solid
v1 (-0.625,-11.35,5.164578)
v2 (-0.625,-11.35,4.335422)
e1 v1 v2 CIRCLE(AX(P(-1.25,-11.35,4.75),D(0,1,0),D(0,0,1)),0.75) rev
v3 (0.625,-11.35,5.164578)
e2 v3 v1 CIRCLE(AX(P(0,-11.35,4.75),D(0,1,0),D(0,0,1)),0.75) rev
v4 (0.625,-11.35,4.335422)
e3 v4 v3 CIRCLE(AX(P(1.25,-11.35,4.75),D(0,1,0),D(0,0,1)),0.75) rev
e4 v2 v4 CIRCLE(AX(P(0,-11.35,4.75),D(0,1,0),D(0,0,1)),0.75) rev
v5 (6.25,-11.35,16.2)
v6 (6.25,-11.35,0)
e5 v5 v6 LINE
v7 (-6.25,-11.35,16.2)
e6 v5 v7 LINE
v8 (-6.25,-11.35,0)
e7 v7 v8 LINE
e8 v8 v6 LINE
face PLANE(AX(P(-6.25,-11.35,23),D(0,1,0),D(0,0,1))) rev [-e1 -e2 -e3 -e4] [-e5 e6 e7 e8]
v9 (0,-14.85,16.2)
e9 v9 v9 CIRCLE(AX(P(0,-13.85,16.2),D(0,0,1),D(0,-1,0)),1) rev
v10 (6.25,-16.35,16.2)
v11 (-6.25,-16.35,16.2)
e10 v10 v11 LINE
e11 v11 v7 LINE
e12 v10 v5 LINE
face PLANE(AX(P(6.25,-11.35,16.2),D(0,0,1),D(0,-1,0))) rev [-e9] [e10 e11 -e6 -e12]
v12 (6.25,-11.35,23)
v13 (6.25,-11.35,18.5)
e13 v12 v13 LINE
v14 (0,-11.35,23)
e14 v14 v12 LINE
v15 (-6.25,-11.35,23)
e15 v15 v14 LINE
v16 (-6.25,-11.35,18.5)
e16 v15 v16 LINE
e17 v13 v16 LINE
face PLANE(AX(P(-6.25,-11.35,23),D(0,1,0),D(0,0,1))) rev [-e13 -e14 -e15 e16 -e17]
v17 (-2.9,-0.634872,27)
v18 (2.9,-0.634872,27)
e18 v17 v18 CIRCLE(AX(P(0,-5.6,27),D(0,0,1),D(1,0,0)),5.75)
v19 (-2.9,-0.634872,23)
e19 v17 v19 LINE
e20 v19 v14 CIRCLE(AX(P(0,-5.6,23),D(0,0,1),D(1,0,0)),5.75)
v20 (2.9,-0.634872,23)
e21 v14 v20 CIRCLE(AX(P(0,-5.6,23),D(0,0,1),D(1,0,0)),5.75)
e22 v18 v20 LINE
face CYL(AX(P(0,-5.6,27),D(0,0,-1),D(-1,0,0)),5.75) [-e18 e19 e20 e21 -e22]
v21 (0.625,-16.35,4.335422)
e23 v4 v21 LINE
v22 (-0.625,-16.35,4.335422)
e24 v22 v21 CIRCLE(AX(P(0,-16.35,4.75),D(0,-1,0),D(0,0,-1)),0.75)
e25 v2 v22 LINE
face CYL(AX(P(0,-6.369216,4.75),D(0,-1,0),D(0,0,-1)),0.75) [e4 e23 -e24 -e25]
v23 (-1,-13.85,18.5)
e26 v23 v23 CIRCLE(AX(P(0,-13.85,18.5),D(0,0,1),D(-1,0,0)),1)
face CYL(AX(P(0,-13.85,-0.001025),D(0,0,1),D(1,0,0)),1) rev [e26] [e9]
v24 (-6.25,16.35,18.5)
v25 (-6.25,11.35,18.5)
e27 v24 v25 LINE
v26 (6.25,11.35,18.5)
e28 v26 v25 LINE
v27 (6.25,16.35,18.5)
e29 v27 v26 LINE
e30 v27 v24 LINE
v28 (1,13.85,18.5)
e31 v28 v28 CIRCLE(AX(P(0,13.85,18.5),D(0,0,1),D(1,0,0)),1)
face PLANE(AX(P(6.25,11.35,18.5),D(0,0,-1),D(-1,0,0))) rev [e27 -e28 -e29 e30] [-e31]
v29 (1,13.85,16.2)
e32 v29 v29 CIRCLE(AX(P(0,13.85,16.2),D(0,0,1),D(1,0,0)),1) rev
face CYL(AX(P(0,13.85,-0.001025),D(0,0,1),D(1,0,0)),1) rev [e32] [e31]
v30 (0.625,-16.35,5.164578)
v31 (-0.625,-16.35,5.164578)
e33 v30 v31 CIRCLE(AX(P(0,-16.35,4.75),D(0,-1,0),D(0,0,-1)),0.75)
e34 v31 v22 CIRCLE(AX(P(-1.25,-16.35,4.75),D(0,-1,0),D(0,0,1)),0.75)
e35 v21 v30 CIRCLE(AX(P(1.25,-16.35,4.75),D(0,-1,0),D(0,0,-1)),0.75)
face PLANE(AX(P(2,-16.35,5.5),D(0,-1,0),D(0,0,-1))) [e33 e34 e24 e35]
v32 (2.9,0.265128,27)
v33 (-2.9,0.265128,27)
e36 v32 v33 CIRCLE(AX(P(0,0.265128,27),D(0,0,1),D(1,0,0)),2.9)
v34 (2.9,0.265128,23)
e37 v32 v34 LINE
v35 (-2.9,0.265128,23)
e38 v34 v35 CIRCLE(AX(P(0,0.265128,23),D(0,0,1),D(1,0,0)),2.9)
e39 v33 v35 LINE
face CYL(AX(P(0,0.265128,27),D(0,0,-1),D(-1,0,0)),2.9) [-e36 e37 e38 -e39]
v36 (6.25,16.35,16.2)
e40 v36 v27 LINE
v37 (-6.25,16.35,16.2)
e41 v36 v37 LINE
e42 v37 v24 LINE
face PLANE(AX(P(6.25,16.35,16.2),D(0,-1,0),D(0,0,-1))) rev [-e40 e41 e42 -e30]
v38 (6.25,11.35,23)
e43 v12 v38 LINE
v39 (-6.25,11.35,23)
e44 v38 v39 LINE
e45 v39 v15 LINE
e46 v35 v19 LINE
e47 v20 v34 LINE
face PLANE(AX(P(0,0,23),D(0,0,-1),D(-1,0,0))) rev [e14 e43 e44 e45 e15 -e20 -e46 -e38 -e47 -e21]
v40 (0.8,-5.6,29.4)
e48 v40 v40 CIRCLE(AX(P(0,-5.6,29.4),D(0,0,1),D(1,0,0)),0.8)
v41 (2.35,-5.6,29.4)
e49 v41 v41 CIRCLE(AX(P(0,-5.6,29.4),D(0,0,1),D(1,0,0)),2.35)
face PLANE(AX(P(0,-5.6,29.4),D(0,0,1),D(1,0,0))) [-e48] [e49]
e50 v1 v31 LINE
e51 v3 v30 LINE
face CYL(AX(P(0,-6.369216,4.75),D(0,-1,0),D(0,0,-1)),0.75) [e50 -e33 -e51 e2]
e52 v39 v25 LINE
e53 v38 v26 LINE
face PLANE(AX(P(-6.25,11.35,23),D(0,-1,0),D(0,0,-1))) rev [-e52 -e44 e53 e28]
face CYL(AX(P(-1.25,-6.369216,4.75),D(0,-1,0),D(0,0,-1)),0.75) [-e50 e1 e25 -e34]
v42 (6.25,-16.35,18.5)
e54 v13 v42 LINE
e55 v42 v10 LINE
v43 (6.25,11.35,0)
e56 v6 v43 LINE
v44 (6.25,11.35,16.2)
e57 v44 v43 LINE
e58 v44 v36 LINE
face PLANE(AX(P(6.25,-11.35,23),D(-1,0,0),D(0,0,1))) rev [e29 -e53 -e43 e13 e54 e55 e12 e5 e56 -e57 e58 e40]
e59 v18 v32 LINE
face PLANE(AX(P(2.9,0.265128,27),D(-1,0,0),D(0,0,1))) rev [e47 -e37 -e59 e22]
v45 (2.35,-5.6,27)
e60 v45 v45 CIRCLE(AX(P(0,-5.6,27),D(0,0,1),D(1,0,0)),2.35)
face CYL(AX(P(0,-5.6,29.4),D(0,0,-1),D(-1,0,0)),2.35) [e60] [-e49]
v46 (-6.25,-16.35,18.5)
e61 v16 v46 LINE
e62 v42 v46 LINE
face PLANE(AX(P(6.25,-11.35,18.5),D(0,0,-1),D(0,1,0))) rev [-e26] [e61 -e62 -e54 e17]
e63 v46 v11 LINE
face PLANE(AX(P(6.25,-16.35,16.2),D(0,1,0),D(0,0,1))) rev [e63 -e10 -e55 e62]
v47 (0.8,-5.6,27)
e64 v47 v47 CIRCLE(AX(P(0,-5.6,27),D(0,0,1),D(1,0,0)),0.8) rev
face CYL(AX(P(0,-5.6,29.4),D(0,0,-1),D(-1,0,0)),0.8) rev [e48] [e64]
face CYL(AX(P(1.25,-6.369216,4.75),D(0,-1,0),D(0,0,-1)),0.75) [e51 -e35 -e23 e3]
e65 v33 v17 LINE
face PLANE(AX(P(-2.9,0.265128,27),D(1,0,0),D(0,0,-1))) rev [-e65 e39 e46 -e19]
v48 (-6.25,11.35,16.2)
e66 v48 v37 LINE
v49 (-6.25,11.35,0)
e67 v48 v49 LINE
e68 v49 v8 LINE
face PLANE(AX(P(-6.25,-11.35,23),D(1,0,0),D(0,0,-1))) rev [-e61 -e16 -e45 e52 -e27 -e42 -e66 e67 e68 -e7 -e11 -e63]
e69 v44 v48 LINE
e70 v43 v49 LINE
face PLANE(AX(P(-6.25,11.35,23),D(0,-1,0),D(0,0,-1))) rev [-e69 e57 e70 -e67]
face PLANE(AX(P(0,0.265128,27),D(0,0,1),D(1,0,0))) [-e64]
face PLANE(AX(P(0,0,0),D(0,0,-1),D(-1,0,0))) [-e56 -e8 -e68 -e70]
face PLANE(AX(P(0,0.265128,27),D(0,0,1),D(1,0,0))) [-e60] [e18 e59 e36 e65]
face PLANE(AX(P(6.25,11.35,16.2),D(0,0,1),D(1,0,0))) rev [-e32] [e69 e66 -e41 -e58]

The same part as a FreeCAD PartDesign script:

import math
import FreeCAD as App
import Part
import Sketcher

V = App.Vector
Q = App.Units.Quantity


def add_polygon(sketch, points):
    """Adds a closed chain of lines whose ends are joined by coincident constraints."""
    first, n = sketch.GeometryCount, len(points)
    for a, b in zip(points, points[1:] + points[:1]):
        sketch.addGeometry(Part.LineSegment(App.Vector(*a, 0), App.Vector(*b, 0)), False)
    for i in range(n):
        sketch.addConstraint(Sketcher.Constraint("Coincident", first + i, 2, first + (i + 1) % n, 1))

doc = App.newDocument("Part")
params = doc.addObject("Spreadsheet::Sheet", "Params")
for row, (alias, value) in enumerate([
    ("sketch1_width", "12.5 mm"),
    ("sketch1_height", "22.7 mm"),
    ("pad1_length", "23 mm"),
    ("sketch2_radius", "2.9 mm"),
    ("sketch2_radius2", "5.75 mm"),
    ("sketch2_height", "0.9 mm"),
    ("pad2_length", "4 mm"),
    ("sketch3_width", "5 mm"),
    ("sketch3_height", "2.3 mm"),
    ("pad3_length", "12.5 mm"),
    ("sketch4_diameter", "2 mm"),
    ("sketch5_diameter", "2 mm"),
    ("sketch6_width", "4 mm"),
    ("sketch6_height", "5 mm"),
    ("pad4_length", "1.5 mm"),
    ("sketch7_diameter", "4.7 mm"),
    ("sketch7_diameter2", "1.6 mm"),
    ("pad5_length", "2.4 mm"),
    ("sketch8_radius", "0.75 mm"),
    ("pocket3_length", "5 mm"),
], start=1):
    params.set(f"A{row}", alias)
    params.set(f"B{row}", "=" + value)
    params.setAlias(f"B{row}", alias)

body = doc.addObject("PartDesign::Body", "Body")

# Sketch on XY plane
sketch1 = body.newObject("Sketcher::SketchObject", "Sketch")
sketch1.AttachmentSupport = (doc.getObject("XY_Plane"), [""])
sketch1.MapMode = "FlatFace"
add_polygon(sketch1, [(-6.25, 11.35), (-6.25, -11.35), (6.25, -11.35), (6.25, 11.35)])  # lines 0-3
sketch1.addConstraint(Sketcher.Constraint("Vertical", 0))
sketch1.addConstraint(Sketcher.Constraint("Horizontal", 1))
sketch1.addConstraint(Sketcher.Constraint("Vertical", 2))
sketch1.addConstraint(Sketcher.Constraint("Horizontal", 3))
sketch1.addConstraint(Sketcher.Constraint("Symmetric", 0, 2, 2, 2, -1, 1))
sketch1.addConstraint(Sketcher.Constraint("DistanceX", 1, 1, 1, 2, Q("12.5 mm")))
sketch1.addConstraint(Sketcher.Constraint("DistanceY", 0, 2, 0, 1, Q("22.7 mm")))
sketch1.setExpression("Constraints[9]", "Params.sketch1_width")
sketch1.setExpression("Constraints[10]", "Params.sketch1_height")
pad1 = body.newObject("PartDesign::Pad", "Pad")
pad1.Profile = sketch1
pad1.setExpression("Length", "Params.pad1_length")

# Sketch on XY plane
sketch2 = body.newObject("Sketcher::SketchObject", "Sketch001")
sketch2.AttachmentSupport = (doc.getObject("XY_Plane"), [""])
sketch2.MapMode = "FlatFace"
sketch2.AttachmentOffset = App.Placement(V(0, 0, 23), App.Rotation())
sketch2.addGeometry(Part.LineSegment(V(2.9, -0.634872, 0), V(2.9, 0.265128, 0)), False)
sketch2.addGeometry(Part.ArcOfCircle(Part.Circle(V(0, 0.265128, 0), V(0, 0, 1), 2.9), math.radians(0), math.radians(180)), False)
sketch2.addGeometry(Part.LineSegment(V(-2.9, 0.265128, 0), V(-2.9, -0.634872, 0)), False)
sketch2.addGeometry(Part.ArcOfCircle(Part.Circle(V(0, -5.6, 0), V(0, 0, 1), 5.75), math.radians(120.288069), math.radians(419.711931)), False)
sketch2.addConstraint(Sketcher.Constraint("Tangent", 0, 2, 1, 1))
sketch2.addConstraint(Sketcher.Constraint("Tangent", 1, 2, 2, 1))
sketch2.addConstraint(Sketcher.Constraint("Coincident", 2, 2, 3, 1))
sketch2.addConstraint(Sketcher.Constraint("Coincident", 3, 2, 0, 1))
sketch2.addConstraint(Sketcher.Constraint("Vertical", 0))
sketch2.addConstraint(Sketcher.Constraint("Vertical", 2))
sketch2.addConstraint(Sketcher.Constraint("Symmetric", 2, 2, 3, 2, -2))
sketch2.addConstraint(Sketcher.Constraint("Radius", 1, Q("2.9 mm")))
sketch2.addConstraint(Sketcher.Constraint("Radius", 3, Q("5.75 mm")))
sketch2.addConstraint(Sketcher.Constraint("DistanceY", 0, 1, 0, 2, Q("0.9 mm")))
sketch2.addConstraint(Sketcher.Constraint("DistanceY", 3, 3, -1, 1, Q("5.6 mm")))
sketch2.setExpression("Constraints[7]", "Params.sketch2_radius")
sketch2.setExpression("Constraints[8]", "Params.sketch2_radius2")
sketch2.setExpression("Constraints[9]", "Params.sketch2_height")
pad2 = body.newObject("PartDesign::Pad", "Pad001")
pad2.Profile = sketch2
pad2.setExpression("Length", "Params.pad2_length")

# Sketch on YZ plane
sketch3 = body.newObject("Sketcher::SketchObject", "Sketch002")
sketch3.AttachmentSupport = (doc.getObject("YZ_Plane"), [""])
sketch3.MapMode = "FlatFace"
add_polygon(sketch3, [(16.35, 18.5), (11.35, 18.5), (11.35, 16.2), (16.35, 16.2)])  # lines 0-3
add_polygon(sketch3, [(-11.35, 18.5), (-16.35, 18.5), (-16.35, 16.2), (-11.35, 16.2)])  # lines 4-7
sketch3.addConstraint(Sketcher.Constraint("Horizontal", 0))
sketch3.addConstraint(Sketcher.Constraint("Vertical", 1))
sketch3.addConstraint(Sketcher.Constraint("Horizontal", 2))
sketch3.addConstraint(Sketcher.Constraint("Vertical", 3))
sketch3.addConstraint(Sketcher.Constraint("Horizontal", 4))
sketch3.addConstraint(Sketcher.Constraint("Vertical", 5))
sketch3.addConstraint(Sketcher.Constraint("Horizontal", 6))
sketch3.addConstraint(Sketcher.Constraint("Vertical", 7))
sketch3.addConstraint(Sketcher.Constraint("Symmetric", 3, 2, 4, 2, -2))
sketch3.addConstraint(Sketcher.Constraint("Symmetric", 1, 2, 6, 2, -2))
sketch3.addConstraint(Sketcher.Constraint("DistanceX", 0, 2, 0, 1, Q("5 mm")))
sketch3.addConstraint(Sketcher.Constraint("DistanceY", 1, 2, 1, 1, Q("2.3 mm")))
sketch3.addConstraint(Sketcher.Constraint("DistanceY", -1, 1, 0, 2, Q("18.5 mm")))
sketch3.addConstraint(Sketcher.Constraint("DistanceX", 4, 2, 0, 2, Q("27.7 mm")))
sketch3.setExpression("Constraints[18]", "Params.sketch3_width")
sketch3.setExpression("Constraints[19]", "Params.sketch3_height")
pad3 = body.newObject("PartDesign::Pad", "Pad002")
pad3.Profile = sketch3
pad3.setExpression("Length", "Params.pad3_length")
pad3.Midplane = True

# Sketch on XY plane
sketch4 = body.newObject("Sketcher::SketchObject", "Sketch003")
sketch4.AttachmentSupport = (doc.getObject("XY_Plane"), [""])
sketch4.MapMode = "FlatFace"
sketch4.AttachmentOffset = App.Placement(V(0, 0, 18.5), App.Rotation())
sketch4.addGeometry(Part.Circle(V(0, 13.85, 0), V(0, 0, 1), 1), False)
sketch4.addConstraint(Sketcher.Constraint("PointOnObject", 0, 3, -2))
sketch4.addConstraint(Sketcher.Constraint("Diameter", 0, Q("2 mm")))
sketch4.addConstraint(Sketcher.Constraint("DistanceY", -1, 1, 0, 3, Q("13.85 mm")))
sketch4.setExpression("Constraints[1]", "Params.sketch4_diameter")
pocket1 = body.newObject("PartDesign::Pocket", "Pocket")
pocket1.Profile = sketch4
pocket1.Type = "UpToFirst"

# Sketch on XY plane
sketch5 = body.newObject("Sketcher::SketchObject", "Sketch004")
sketch5.AttachmentSupport = (doc.getObject("XY_Plane"), [""])
sketch5.MapMode = "FlatFace"
sketch5.AttachmentOffset = App.Placement(V(0, 0, 18.5), App.Rotation())
sketch5.addGeometry(Part.Circle(V(0, -13.85, 0), V(0, 0, 1), 1), False)
sketch5.addConstraint(Sketcher.Constraint("PointOnObject", 0, 3, -2))
sketch5.addConstraint(Sketcher.Constraint("Diameter", 0, Q("2 mm")))
sketch5.addConstraint(Sketcher.Constraint("DistanceY", 0, 3, -1, 1, Q("13.85 mm")))
sketch5.setExpression("Constraints[1]", "Params.sketch5_diameter")
pocket2 = body.newObject("PartDesign::Pocket", "Pocket001")
pocket2.Profile = sketch5
pocket2.Type = "UpToFirst"

# Sketch on XY plane
sketch6 = body.newObject("Sketcher::SketchObject", "Sketch005")
sketch6.AttachmentSupport = (doc.getObject("XY_Plane"), [""])
sketch6.MapMode = "FlatFace"
sketch6.AttachmentOffset = App.Placement(V(0, 0, 4), App.Rotation())
add_polygon(sketch6, [(2, -11.35), (2, -16.35), (-2, -16.35), (-2, -11.35)])  # lines 0-3
sketch6.addConstraint(Sketcher.Constraint("Vertical", 0))
sketch6.addConstraint(Sketcher.Constraint("Horizontal", 1))
sketch6.addConstraint(Sketcher.Constraint("Vertical", 2))
sketch6.addConstraint(Sketcher.Constraint("Horizontal", 3))
sketch6.addConstraint(Sketcher.Constraint("DistanceX", 1, 2, 1, 1, Q("4 mm")))
sketch6.addConstraint(Sketcher.Constraint("DistanceY", 0, 2, 0, 1, Q("5 mm")))
sketch6.addConstraint(Sketcher.Constraint("DistanceX", -1, 1, 0, 2, Q("2 mm")))
sketch6.addConstraint(Sketcher.Constraint("DistanceY", 0, 2, -1, 1, Q("16.35 mm")))
sketch6.setExpression("Constraints[8]", "Params.sketch6_width")
sketch6.setExpression("Constraints[9]", "Params.sketch6_height")
pad4 = body.newObject("PartDesign::Pad", "Pad003")
pad4.Profile = sketch6
pad4.setExpression("Length", "Params.pad4_length")

# Sketch on XY plane
sketch7 = body.newObject("Sketcher::SketchObject", "Sketch006")
sketch7.AttachmentSupport = (doc.getObject("XY_Plane"), [""])
sketch7.MapMode = "FlatFace"
sketch7.AttachmentOffset = App.Placement(V(0, 0, 27), App.Rotation())
sketch7.addGeometry(Part.Circle(V(0, -5.6, 0), V(0, 0, 1), 2.35), False)
sketch7.addGeometry(Part.Circle(V(0, -5.6, 0), V(0, 0, 1), 0.8), False)
sketch7.addConstraint(Sketcher.Constraint("Coincident", 1, 3, 0, 3))
sketch7.addConstraint(Sketcher.Constraint("PointOnObject", 0, 3, -2))
sketch7.addConstraint(Sketcher.Constraint("Diameter", 0, Q("4.7 mm")))
sketch7.addConstraint(Sketcher.Constraint("Diameter", 1, Q("1.6 mm")))
sketch7.addConstraint(Sketcher.Constraint("DistanceY", 0, 3, -1, 1, Q("5.6 mm")))
sketch7.setExpression("Constraints[2]", "Params.sketch7_diameter")
sketch7.setExpression("Constraints[3]", "Params.sketch7_diameter2")
pad5 = body.newObject("PartDesign::Pad", "Pad004")
pad5.Profile = sketch7
pad5.setExpression("Length", "Params.pad5_length")

# Sketch on XZ plane
sketch8 = body.newObject("Sketcher::SketchObject", "Sketch007")
sketch8.AttachmentSupport = (doc.getObject("XZ_Plane"), [""])
sketch8.MapMode = "FlatFace"
sketch8.AttachmentOffset = App.Placement(V(0, 0, 16.35), App.Rotation())
add_polygon(sketch8, [(-2.257353, 5.801859), (-2.257353, 3.698141), (2.257353, 3.698141), (2.257353, 5.801859)])  # lines 0-3
sketch8.addGeometry(Part.ArcOfCircle(Part.Circle(V(0, 4.75, 0), V(0, 0, 1), 0.75), math.radians(-146.44269), math.radians(-33.55731)), False)  # 4
sketch8.addGeometry(Part.ArcOfCircle(Part.Circle(V(-1.25, 4.75, 0), V(0, 0, 1), 0.75), math.radians(33.55731), math.radians(326.44269)), False)  # 5
sketch8.addGeometry(Part.ArcOfCircle(Part.Circle(V(0, 4.75, 0), V(0, 0, 1), 0.75), math.radians(33.55731), math.radians(146.44269)), False)  # 6
sketch8.addGeometry(Part.ArcOfCircle(Part.Circle(V(1.25, 4.75, 0), V(0, 0, 1), 0.75), math.radians(-146.44269), math.radians(146.44269)), False)  # 7
sketch8.addConstraint(Sketcher.Constraint("Coincident", 4, 1, 5, 2))
sketch8.addConstraint(Sketcher.Constraint("Coincident", 5, 1, 6, 2))
sketch8.addConstraint(Sketcher.Constraint("Coincident", 6, 1, 7, 2))
sketch8.addConstraint(Sketcher.Constraint("Coincident", 7, 1, 4, 2))
sketch8.addConstraint(Sketcher.Constraint("Vertical", 0))
sketch8.addConstraint(Sketcher.Constraint("Horizontal", 1))
sketch8.addConstraint(Sketcher.Constraint("Vertical", 2))
sketch8.addConstraint(Sketcher.Constraint("Horizontal", 3))
sketch8.addConstraint(Sketcher.Constraint("Coincident", 6, 3, 4, 3))
sketch8.addConstraint(Sketcher.Constraint("Equal", 4, 5))
sketch8.addConstraint(Sketcher.Constraint("Equal", 5, 6))
sketch8.addConstraint(Sketcher.Constraint("Equal", 6, 7))
sketch8.addConstraint(Sketcher.Constraint("Symmetric", 5, 3, 7, 3, -2))
sketch8.addConstraint(Sketcher.Constraint("PointOnObject", 4, 3, -2))
sketch8.addConstraint(Sketcher.Constraint("Horizontal", 4, 3, 5, 3))
sketch8.addConstraint(Sketcher.Constraint("Radius", 4, Q("0.75 mm")))
sketch8.addConstraint(Sketcher.Constraint("DistanceX", 5, 3, 7, 3, Q("2.5 mm")))
sketch8.addConstraint(Sketcher.Constraint("DistanceY", -1, 1, 4, 3, Q("4.75 mm")))
sketch8.addConstraint(Sketcher.Constraint("DistanceY", 0, 2, 0, 1, Q("2.103719 mm")))
sketch8.addConstraint(Sketcher.Constraint("DistanceX", 1, 1, 1, 2, Q("4.514707 mm")))
sketch8.addConstraint(Sketcher.Constraint("DistanceY", -1, 1, 0, 2, Q("3.698141 mm")))
sketch8.addConstraint(Sketcher.Constraint("DistanceX", 0, 2, -1, 1, Q("2.257353 mm")))
sketch8.setExpression("Constraints[19]", "Params.sketch8_radius")
pocket3 = body.newObject("PartDesign::Pocket", "Pocket002")
pocket3.Profile = sketch8
pocket3.setExpression("Length", "Params.pocket3_length")

doc.recompute()
